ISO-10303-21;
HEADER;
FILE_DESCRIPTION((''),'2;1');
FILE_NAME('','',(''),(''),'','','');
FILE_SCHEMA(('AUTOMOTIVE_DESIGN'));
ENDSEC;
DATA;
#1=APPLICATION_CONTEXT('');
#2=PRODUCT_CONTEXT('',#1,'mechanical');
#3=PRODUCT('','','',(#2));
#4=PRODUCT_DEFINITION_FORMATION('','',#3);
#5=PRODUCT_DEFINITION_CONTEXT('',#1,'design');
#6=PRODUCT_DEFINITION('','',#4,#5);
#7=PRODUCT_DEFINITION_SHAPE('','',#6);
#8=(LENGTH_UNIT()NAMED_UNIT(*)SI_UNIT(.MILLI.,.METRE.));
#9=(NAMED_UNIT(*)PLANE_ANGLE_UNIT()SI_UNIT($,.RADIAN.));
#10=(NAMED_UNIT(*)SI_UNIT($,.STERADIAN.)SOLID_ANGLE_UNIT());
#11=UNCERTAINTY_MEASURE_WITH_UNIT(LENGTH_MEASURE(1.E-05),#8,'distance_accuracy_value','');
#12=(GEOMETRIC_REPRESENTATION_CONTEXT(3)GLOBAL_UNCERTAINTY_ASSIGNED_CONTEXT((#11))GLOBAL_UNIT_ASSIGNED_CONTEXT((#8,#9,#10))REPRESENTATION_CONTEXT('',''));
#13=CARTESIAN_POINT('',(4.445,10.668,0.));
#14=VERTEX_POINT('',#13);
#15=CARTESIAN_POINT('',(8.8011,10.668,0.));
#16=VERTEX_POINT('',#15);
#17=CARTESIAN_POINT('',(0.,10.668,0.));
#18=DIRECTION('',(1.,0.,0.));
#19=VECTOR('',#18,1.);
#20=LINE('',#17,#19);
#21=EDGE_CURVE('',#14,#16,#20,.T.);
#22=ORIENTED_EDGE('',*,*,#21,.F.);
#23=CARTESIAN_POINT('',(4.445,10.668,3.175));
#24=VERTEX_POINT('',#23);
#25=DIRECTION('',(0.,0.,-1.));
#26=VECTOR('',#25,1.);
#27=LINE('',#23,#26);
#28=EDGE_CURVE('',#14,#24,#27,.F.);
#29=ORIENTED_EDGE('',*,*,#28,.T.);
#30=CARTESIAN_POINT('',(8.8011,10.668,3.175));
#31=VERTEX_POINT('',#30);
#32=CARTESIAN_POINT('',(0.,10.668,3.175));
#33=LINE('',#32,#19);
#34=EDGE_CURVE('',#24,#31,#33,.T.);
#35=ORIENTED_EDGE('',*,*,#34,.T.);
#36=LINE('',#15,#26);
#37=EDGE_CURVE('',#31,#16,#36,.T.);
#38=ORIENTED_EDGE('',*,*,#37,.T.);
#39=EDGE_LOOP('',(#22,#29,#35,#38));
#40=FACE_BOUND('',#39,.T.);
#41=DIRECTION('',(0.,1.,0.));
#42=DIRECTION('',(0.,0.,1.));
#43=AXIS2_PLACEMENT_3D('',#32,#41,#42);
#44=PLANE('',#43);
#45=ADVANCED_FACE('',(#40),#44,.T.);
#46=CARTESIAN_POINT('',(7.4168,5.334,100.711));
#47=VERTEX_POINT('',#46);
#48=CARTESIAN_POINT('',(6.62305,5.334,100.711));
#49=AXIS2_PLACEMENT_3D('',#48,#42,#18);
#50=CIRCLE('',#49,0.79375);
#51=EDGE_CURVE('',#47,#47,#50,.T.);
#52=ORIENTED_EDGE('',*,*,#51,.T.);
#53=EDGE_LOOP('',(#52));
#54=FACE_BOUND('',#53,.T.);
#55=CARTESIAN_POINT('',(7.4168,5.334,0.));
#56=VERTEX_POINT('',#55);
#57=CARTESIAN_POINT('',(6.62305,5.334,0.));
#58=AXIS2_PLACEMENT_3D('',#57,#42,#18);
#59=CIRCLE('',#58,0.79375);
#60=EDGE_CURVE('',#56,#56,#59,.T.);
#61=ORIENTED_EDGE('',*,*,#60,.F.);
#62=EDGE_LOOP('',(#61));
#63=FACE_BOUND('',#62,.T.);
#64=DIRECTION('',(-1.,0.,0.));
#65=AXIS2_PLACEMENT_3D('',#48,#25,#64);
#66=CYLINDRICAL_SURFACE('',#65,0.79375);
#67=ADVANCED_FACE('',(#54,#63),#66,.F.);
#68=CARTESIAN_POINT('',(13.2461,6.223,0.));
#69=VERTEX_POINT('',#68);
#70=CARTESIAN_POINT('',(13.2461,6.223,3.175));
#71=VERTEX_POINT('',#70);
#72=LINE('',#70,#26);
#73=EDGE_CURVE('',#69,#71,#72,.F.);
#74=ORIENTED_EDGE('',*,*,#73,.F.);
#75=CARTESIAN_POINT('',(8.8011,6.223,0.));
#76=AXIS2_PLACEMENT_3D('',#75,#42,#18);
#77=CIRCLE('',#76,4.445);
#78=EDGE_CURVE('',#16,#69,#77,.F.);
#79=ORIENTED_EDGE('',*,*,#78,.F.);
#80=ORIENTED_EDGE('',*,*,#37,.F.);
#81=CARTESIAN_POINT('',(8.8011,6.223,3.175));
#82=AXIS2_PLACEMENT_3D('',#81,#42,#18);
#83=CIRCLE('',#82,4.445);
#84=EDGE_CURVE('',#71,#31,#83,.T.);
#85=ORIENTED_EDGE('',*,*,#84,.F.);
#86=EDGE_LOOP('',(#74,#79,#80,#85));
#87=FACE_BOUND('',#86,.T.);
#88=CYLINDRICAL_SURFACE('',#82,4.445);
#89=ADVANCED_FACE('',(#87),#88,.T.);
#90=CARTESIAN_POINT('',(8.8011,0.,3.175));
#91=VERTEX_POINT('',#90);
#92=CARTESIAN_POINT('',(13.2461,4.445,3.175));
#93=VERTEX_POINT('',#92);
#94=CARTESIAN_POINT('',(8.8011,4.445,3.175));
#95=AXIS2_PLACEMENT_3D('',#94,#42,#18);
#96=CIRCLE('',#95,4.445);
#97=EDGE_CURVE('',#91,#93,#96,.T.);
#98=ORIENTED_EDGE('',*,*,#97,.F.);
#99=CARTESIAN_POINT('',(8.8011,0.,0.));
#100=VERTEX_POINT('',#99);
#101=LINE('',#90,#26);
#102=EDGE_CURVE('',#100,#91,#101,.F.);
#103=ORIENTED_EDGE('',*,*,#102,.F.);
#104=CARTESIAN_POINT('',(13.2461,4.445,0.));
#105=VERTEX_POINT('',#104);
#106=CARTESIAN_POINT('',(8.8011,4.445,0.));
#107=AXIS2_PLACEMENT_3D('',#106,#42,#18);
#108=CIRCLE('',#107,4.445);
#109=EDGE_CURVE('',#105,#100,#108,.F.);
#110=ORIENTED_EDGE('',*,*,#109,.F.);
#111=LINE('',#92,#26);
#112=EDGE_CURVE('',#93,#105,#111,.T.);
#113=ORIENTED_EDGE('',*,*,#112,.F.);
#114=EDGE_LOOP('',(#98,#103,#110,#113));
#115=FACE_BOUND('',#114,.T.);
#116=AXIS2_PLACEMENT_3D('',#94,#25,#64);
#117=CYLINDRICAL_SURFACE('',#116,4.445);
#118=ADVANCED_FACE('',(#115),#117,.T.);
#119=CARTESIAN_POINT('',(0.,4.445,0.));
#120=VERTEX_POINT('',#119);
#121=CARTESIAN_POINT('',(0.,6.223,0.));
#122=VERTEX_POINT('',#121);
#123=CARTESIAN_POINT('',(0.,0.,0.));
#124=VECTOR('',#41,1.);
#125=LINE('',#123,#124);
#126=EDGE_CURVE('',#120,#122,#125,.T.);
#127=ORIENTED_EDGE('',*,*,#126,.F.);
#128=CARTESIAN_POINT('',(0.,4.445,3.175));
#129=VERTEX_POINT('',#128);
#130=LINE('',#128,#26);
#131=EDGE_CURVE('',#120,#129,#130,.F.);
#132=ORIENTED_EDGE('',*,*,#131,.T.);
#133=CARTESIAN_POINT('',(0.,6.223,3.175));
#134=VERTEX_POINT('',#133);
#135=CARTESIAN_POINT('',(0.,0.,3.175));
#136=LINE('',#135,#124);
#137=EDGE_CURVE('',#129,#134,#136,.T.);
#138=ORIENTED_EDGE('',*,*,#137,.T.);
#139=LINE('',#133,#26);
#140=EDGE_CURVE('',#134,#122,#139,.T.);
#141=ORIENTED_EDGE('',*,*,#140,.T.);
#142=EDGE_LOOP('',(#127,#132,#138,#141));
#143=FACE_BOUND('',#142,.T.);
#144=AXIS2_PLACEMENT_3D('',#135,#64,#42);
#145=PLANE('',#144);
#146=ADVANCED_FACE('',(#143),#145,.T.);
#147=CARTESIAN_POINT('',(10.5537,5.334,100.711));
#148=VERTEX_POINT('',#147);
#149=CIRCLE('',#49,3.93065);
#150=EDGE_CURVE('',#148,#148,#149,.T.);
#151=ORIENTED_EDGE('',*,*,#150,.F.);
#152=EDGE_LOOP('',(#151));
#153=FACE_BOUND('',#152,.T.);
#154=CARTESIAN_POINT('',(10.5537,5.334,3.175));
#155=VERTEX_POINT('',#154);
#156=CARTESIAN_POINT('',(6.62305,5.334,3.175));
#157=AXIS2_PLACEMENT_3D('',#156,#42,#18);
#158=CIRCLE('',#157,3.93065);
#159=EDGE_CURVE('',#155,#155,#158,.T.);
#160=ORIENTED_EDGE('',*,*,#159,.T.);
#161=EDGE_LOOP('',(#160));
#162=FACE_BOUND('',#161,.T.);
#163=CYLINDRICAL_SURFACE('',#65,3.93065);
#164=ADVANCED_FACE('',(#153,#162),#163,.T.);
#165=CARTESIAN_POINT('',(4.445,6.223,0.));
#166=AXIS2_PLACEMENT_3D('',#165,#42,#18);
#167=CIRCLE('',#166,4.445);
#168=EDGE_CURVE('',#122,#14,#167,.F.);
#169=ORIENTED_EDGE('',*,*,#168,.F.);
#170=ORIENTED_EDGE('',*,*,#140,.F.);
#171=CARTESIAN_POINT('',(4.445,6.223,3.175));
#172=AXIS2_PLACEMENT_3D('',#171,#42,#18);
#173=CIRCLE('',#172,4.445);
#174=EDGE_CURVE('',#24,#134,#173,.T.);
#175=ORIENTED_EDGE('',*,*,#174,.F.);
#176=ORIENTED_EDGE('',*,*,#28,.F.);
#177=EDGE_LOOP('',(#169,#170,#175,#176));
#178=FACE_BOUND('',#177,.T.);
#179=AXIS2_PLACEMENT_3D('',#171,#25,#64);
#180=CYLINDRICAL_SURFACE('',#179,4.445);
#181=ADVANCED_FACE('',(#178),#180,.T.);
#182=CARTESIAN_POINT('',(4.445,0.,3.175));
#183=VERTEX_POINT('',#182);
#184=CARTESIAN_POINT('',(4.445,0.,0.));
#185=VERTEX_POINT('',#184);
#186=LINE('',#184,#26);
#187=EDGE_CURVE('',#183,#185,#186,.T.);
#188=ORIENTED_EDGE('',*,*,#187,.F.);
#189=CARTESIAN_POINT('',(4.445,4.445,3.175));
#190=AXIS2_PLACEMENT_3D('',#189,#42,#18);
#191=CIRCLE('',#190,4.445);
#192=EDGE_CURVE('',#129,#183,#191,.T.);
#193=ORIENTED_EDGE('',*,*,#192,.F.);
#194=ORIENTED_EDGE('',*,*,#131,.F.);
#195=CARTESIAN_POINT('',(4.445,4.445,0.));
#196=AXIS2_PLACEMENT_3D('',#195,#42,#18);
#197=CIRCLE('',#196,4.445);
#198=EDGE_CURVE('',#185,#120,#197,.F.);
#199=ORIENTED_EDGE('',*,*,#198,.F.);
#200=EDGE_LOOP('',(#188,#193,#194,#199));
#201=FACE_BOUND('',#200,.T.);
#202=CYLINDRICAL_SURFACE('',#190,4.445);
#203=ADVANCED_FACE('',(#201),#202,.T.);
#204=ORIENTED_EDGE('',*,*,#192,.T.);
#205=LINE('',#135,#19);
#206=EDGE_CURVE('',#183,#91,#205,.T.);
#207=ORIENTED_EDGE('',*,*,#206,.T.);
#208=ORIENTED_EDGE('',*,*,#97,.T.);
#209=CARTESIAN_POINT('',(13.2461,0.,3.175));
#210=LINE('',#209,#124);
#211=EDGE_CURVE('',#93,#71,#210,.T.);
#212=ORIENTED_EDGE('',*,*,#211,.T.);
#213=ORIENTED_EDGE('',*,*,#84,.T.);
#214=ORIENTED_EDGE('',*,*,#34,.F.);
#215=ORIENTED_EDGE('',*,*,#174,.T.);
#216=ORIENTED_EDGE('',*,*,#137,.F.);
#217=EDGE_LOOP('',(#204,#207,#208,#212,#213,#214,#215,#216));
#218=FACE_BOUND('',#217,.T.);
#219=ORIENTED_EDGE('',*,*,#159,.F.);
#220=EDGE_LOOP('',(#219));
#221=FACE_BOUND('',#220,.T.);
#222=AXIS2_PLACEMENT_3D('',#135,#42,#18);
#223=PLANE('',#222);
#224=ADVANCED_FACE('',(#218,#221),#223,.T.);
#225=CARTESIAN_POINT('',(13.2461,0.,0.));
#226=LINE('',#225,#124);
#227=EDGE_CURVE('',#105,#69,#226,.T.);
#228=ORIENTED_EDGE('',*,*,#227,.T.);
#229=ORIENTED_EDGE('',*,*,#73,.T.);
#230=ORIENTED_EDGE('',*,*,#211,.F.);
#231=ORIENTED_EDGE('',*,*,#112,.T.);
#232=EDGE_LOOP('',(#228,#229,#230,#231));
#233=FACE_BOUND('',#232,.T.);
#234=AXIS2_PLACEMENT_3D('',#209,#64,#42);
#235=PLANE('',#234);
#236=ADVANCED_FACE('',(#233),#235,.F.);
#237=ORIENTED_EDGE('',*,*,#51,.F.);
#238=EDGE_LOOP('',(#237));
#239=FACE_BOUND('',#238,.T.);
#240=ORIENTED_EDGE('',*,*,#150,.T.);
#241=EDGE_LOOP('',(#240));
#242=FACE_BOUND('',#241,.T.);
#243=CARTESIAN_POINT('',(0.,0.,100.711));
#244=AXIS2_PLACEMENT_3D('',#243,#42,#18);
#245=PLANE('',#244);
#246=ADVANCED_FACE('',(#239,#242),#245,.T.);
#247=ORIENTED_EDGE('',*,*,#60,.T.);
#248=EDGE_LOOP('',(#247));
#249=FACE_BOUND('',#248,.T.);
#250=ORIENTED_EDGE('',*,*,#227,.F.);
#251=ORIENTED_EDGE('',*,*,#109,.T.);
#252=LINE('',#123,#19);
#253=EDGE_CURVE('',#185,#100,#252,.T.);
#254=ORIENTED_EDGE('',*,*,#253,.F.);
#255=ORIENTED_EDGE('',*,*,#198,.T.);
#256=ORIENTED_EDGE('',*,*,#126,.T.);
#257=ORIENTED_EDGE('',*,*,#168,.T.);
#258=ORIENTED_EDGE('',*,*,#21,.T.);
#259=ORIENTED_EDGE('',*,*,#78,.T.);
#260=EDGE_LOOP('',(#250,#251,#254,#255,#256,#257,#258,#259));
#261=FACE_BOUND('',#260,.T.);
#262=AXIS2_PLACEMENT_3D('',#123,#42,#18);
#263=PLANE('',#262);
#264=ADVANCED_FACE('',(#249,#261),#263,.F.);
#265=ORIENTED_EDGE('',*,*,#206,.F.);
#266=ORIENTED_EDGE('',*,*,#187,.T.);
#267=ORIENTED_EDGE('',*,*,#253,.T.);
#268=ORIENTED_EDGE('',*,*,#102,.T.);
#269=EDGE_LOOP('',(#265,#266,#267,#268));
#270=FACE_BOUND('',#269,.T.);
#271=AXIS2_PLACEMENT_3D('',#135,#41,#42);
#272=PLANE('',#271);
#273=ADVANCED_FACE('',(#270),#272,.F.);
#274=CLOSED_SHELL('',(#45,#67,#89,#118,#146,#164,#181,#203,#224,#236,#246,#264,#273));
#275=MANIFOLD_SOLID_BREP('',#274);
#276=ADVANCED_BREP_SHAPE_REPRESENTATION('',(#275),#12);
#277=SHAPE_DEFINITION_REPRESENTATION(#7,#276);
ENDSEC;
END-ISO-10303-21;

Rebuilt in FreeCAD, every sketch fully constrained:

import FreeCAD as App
import Part
import Sketcher

V = App.Vector
Q = App.Units.Quantity


def edges_at(feature, points):
    """Names of the edges that pass closest to the given points."""
    edges = feature.Shape.Edges
    near = lambda p: min(range(len(edges)), key=lambda i: edges[i].distToShape(Part.Vertex(*p))[0])
    return sorted({f"Edge{near(p) + 1}" for p in points})

doc = App.newDocument("Part")
body = doc.addObject("PartDesign::Body", "Body")

# Sketch on XY plane
sketch1 = body.newObject("Sketcher::SketchObject", "Sketch")
sketch1.AttachmentSupport = (doc.getObject("XY_Plane"), [""])
sketch1.MapMode = "FlatFace"
sketch1.addGeometry([
    Part.LineSegment(V(0, 10.668, 0), V(0, 0, 0)),  # 0
    Part.LineSegment(V(0, 0, 0), V(13.2461, 0, 0)),  # 1
    Part.LineSegment(V(13.2461, 0, 0), V(13.2461, 10.668, 0)),  # 2
    Part.LineSegment(V(13.2461, 10.668, 0), V(0, 10.668, 0)),  # 3
    Part.Circle(V(6.62305, 5.334, 0), V(0, 0, 1), 3.93065),  # 4
], False)
sketch1.addConstraint([
    Sketcher.Constraint("Coincident", 0, 2, 1, 1),
    Sketcher.Constraint("Coincident", 1, 2, 2, 1),
    Sketcher.Constraint("Coincident", 2, 2, 3, 1),
    Sketcher.Constraint("Coincident", 3, 2, 0, 1),
    Sketcher.Constraint("Vertical", 0),
    Sketcher.Constraint("Horizontal", 1),
    Sketcher.Constraint("Vertical", 2),
    Sketcher.Constraint("Horizontal", 3),
    Sketcher.Constraint("Coincident", 0, 2, -1, 1),
    Sketcher.Constraint("Diameter", 4, Q("0.3095 in")),
    Sketcher.Constraint("DistanceY", 0, 2, 0, 1, Q("0.42 in")),
    Sketcher.Constraint("DistanceY", -1, 1, 4, 3, Q("0.21 in")),
    Sketcher.Constraint("DistanceX", 1, 1, 1, 2, Q("0.5215 in")),
    Sketcher.Constraint("DistanceX", -1, 1, 4, 3, 6.62305),
])
pad1 = body.newObject("PartDesign::Pad", "Pad")
pad1.Profile = sketch1
pad1.Length = Q("0.125 in")

# Sketch on XY plane
sketch2 = body.newObject("Sketcher::SketchObject", "Sketch001")
sketch2.AttachmentSupport = (doc.getObject("XY_Plane"), [""])
sketch2.MapMode = "FlatFace"
sketch2.addGeometry([
    Part.Circle(V(6.62305, 5.334, 0), V(0, 0, 1), 3.93065),
    Part.Circle(V(6.62305, 5.334, 0), V(0, 0, 1), 0.79375),
], False)
sketch2.addConstraint([
    Sketcher.Constraint("Coincident", 1, 3, 0, 3),
    Sketcher.Constraint("Diameter", 1, Q("0.0625 in")),
    Sketcher.Constraint("Diameter", 0, Q("0.3095 in")),
    Sketcher.Constraint("DistanceY", -1, 1, 0, 3, Q("0.21 in")),
    Sketcher.Constraint("DistanceX", -1, 1, 0, 3, 6.62305),
])
pad2 = body.newObject("PartDesign::Pad", "Pad001")
pad2.Profile = sketch2
pad2.Length = Q("3.965 in")
doc.recompute()

fillet = body.newObject("PartDesign::Fillet", "Fillet")
fillet.Base = (pad2, edges_at(pad2, [
    (0, 0, 1.587),
    (0, 10.668, 1.587),
    (13.246, 10.668, 1.587),
    (13.246, 0, 1.587),
]))
fillet.Radius = Q("0.175 in")

doc.recompute()
